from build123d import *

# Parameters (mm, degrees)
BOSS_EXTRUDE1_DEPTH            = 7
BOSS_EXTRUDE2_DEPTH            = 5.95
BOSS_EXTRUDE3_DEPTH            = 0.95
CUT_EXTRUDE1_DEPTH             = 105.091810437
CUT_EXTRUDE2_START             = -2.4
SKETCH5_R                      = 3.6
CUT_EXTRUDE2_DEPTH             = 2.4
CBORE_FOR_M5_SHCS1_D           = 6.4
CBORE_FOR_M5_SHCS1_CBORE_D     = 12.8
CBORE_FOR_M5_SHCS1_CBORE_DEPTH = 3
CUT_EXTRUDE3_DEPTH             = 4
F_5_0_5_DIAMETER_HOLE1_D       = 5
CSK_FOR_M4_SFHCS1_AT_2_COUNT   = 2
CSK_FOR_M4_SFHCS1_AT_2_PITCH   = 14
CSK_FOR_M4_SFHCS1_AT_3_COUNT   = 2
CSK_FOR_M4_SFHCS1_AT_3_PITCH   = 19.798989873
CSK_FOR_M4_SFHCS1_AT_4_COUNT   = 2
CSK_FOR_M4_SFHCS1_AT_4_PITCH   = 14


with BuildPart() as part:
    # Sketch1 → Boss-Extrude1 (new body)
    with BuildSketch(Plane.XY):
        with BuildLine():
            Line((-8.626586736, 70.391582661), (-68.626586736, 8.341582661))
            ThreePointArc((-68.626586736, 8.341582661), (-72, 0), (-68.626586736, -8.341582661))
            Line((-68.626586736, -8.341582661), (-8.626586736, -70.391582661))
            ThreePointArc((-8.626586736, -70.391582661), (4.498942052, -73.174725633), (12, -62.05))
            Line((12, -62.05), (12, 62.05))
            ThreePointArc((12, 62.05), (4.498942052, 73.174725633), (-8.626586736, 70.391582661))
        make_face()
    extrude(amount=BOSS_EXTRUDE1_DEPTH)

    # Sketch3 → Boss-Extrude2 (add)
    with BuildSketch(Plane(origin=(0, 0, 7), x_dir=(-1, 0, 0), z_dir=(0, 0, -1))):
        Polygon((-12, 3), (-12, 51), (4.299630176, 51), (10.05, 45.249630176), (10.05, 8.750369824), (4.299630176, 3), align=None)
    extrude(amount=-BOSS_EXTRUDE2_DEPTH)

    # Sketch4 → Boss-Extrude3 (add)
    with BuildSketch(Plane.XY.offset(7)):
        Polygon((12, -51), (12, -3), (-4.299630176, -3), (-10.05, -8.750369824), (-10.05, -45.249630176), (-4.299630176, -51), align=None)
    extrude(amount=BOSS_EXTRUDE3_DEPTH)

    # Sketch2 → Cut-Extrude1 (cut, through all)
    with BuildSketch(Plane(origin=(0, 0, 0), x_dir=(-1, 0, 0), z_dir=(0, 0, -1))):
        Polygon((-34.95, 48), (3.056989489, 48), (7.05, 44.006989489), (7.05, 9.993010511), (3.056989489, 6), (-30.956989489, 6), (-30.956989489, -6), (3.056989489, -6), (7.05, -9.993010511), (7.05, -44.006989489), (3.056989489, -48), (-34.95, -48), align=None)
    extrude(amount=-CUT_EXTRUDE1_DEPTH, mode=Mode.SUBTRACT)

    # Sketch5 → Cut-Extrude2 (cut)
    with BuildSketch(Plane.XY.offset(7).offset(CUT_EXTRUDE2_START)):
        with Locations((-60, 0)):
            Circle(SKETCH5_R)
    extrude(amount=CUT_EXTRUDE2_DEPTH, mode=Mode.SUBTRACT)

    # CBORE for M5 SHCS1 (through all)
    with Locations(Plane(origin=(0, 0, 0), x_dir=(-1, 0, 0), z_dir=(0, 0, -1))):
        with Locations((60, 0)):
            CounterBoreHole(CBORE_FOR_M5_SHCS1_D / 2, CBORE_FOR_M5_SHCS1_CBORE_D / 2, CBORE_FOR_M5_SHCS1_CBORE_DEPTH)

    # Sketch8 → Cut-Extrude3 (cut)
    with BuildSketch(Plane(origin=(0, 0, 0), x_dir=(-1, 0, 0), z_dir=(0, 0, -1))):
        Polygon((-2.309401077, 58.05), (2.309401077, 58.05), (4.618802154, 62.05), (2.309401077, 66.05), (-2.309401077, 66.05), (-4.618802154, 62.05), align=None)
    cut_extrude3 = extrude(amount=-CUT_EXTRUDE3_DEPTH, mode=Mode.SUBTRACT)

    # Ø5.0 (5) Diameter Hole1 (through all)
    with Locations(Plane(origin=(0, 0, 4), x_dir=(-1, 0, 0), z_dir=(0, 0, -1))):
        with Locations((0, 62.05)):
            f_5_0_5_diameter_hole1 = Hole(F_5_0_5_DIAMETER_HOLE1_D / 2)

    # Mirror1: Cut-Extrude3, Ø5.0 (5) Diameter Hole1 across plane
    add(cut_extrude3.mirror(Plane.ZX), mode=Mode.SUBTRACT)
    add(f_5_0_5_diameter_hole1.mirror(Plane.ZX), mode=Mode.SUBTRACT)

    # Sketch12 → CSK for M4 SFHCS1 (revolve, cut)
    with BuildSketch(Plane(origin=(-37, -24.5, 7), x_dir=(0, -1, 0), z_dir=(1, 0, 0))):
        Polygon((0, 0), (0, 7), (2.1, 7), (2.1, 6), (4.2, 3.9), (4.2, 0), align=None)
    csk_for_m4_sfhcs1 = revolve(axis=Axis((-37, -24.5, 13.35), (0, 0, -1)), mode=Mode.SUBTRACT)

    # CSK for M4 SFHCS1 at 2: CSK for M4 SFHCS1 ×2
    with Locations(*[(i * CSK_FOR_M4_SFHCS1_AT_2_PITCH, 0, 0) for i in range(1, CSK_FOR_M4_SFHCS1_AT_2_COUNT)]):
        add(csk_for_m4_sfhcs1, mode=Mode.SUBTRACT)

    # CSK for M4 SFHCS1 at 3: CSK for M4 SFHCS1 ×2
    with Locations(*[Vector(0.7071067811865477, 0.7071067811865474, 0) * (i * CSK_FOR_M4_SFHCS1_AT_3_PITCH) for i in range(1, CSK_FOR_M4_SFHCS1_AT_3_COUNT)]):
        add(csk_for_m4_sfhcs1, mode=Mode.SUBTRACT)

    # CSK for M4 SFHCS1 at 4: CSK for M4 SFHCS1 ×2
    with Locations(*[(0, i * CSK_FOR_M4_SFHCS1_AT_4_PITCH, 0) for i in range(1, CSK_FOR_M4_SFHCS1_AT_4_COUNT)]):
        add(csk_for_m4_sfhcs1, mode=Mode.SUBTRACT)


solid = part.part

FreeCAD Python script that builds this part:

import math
import FreeCAD as App
import Part
import Sketcher
Q = App.Units.Quantity

doc = App.newDocument("Part")
body = doc.addObject("PartDesign::Body", "Body")

# Sketch on XY plane
sketch1 = body.newObject("Sketcher::SketchObject", "Sketch")
sketch1.AttachmentSupport = (doc.getObject("XY_Plane"), [""])
sketch1.MapMode = "FlatFace"
sketch1.addGeometry(Part.LineSegment(App.Vector(-9, 70, 0), App.Vector(-69, 8, 0)), False)
sketch1.addGeometry(Part.ArcOfCircle(Part.Circle(App.Vector(-60, 0, 0), App.Vector(0, 0, 1), 12), math.radians(136), math.radians(224)), False)
sketch1.addGeometry(Part.LineSegment(App.Vector(-69, -8, 0), App.Vector(-9, -70, 0)), False)
sketch1.addGeometry(Part.ArcOfCircle(Part.Circle(App.Vector(0, -62, 0), App.Vector(0, 0, 1), 12), math.radians(-136), math.radians(0)), False)
sketch1.addGeometry(Part.LineSegment(App.Vector(12, -62, 0), App.Vector(12, 62, 0)), False)
sketch1.addGeometry(Part.ArcOfCircle(Part.Circle(App.Vector(0, 62, 0), App.Vector(0, 0, 1), 12), math.radians(0), math.radians(136)), False)
sketch1.addConstraint(Sketcher.Constraint("Tangent", 0, 2, 1, 1))
sketch1.addConstraint(Sketcher.Constraint("Tangent", 1, 2, 2, 1))
sketch1.addConstraint(Sketcher.Constraint("Tangent", 2, 2, 3, 1))
sketch1.addConstraint(Sketcher.Constraint("Tangent", 3, 2, 4, 1))
sketch1.addConstraint(Sketcher.Constraint("Tangent", 4, 2, 5, 1))
sketch1.addConstraint(Sketcher.Constraint("Tangent", 5, 2, 0, 1))
sketch1.addConstraint(Sketcher.Constraint("Vertical", 4))
sketch1.addConstraint(Sketcher.Constraint("Equal", 1, 3))
sketch1.addConstraint(Sketcher.Constraint("Equal", 3, 5))
sketch1.addConstraint(Sketcher.Constraint("Symmetric", 3, 3, 5, 3, -1, 1))
sketch1.addConstraint(Sketcher.Constraint("PointOnObject", 1, 3, -1))
sketch1.addConstraint(Sketcher.Constraint("Radius", 1, Q("12 mm")))
sketch1.addConstraint(Sketcher.Constraint("DistanceY", 4, 1, 4, 2, Q("124.1 mm")))
sketch1.addConstraint(Sketcher.Constraint("DistanceX", 1, 3, -1, 1, Q("60 mm")))
pad1 = body.newObject("PartDesign::Pad", "Pad")
pad1.Profile = sketch1
pad1.Length = 7

# Sketch on XY plane
sketch2 = body.newObject("Sketcher::SketchObject", "Sketch001")
sketch2.AttachmentSupport = (doc.getObject("XY_Plane"), [""])
sketch2.MapMode = "FlatFace"
sketch2.AttachmentOffset = App.Placement(App.Vector(0, 0, 7), App.Rotation())
sketch2.addGeometry(Part.LineSegment(App.Vector(12, 51, 0), App.Vector(12, 3, 0)), False)
sketch2.addGeometry(Part.LineSegment(App.Vector(12, 3, 0), App.Vector(-4, 3, 0)), False)
sketch2.addGeometry(Part.LineSegment(App.Vector(-4, 3, 0), App.Vector(-10, 9, 0)), False)
sketch2.addGeometry(Part.LineSegment(App.Vector(-10, 9, 0), App.Vector(-10, 45, 0)), False)
sketch2.addGeometry(Part.LineSegment(App.Vector(-10, 45, 0), App.Vector(-4, 51, 0)), False)
sketch2.addGeometry(Part.LineSegment(App.Vector(-4, 51, 0), App.Vector(12, 51, 0)), False)
sketch2.addConstraint(Sketcher.Constraint("Coincident", 0, 2, 1, 1))
sketch2.addConstraint(Sketcher.Constraint("Coincident", 1, 2, 2, 1))
sketch2.addConstraint(Sketcher.Constraint("Coincident", 2, 2, 3, 1))
sketch2.addConstraint(Sketcher.Constraint("Coincident", 3, 2, 4, 1))
sketch2.addConstraint(Sketcher.Constraint("Coincident", 4, 2, 5, 1))
sketch2.addConstraint(Sketcher.Constraint("Coincident", 5, 2, 0, 1))
sketch2.addConstraint(Sketcher.Constraint("Vertical", 0))
sketch2.addConstraint(Sketcher.Constraint("Horizontal", 1))
sketch2.addConstraint(Sketcher.Constraint("Vertical", 3))
sketch2.addConstraint(Sketcher.Constraint("Horizontal", 5))
sketch2.addConstraint(Sketcher.Constraint("Perpendicular", 2, 4))
sketch2.addConstraint(Sketcher.Constraint("Vertical", 1, 2, 4, 2))
sketch2.addConstraint(Sketcher.Constraint("Equal", 2, 4))
sketch2.addConstraint(Sketcher.Constraint("DistanceY", 0, 2, 0, 1, Q("48 mm")))
sketch2.addConstraint(Sketcher.Constraint("DistanceX", -1, 1, 0, 2, Q("12 mm")))
sketch2.addConstraint(Sketcher.Constraint("DistanceY", -1, 1, 0, 2, Q("3 mm")))
sketch2.addConstraint(Sketcher.Constraint("DistanceX", 2, 2, -1, 1, Q("10.05 mm")))
sketch2.addConstraint(Sketcher.Constraint("DistanceX", 1, 2, 1, 1, Q("16.29963 mm")))
pad2 = body.newObject("PartDesign::Pad", "Pad001")
pad2.Profile = sketch2
pad2.Length = 5.95

# Sketch on XY plane
sketch3 = body.newObject("Sketcher::SketchObject", "Sketch002")
sketch3.AttachmentSupport = (doc.getObject("XY_Plane"), [""])
sketch3.MapMode = "FlatFace"
sketch3.AttachmentOffset = App.Placement(App.Vector(0, 0, 7), App.Rotation())
sketch3.addGeometry(Part.LineSegment(App.Vector(12, -51, 0), App.Vector(12, -3, 0)), False)
sketch3.addGeometry(Part.LineSegment(App.Vector(12, -3, 0), App.Vector(-4, -3, 0)), False)
sketch3.addGeometry(Part.LineSegment(App.Vector(-4, -3, 0), App.Vector(-10, -9, 0)), False)
sketch3.addGeometry(Part.LineSegment(App.Vector(-10, -9, 0), App.Vector(-10, -45, 0)), False)
sketch3.addGeometry(Part.LineSegment(App.Vector(-10, -45, 0), App.Vector(-4, -51, 0)), False)
sketch3.addGeometry(Part.LineSegment(App.Vector(-4, -51, 0), App.Vector(12, -51, 0)), False)
sketch3.addConstraint(Sketcher.Constraint("Coincident", 0, 2, 1, 1))
sketch3.addConstraint(Sketcher.Constraint("Coincident", 1, 2, 2, 1))
sketch3.addConstraint(Sketcher.Constraint("Coincident", 2, 2, 3, 1))
sketch3.addConstraint(Sketcher.Constraint("Coincident", 3, 2, 4, 1))
sketch3.addConstraint(Sketcher.Constraint("Coincident", 4, 2, 5, 1))
sketch3.addConstraint(Sketcher.Constraint("Coincident", 5, 2, 0, 1))
sketch3.addConstraint(Sketcher.Constraint("Vertical", 0))
sketch3.addConstraint(Sketcher.Constraint("Horizontal", 1))
sketch3.addConstraint(Sketcher.Constraint("Vertical", 3))
sketch3.addConstraint(Sketcher.Constraint("Horizontal", 5))
sketch3.addConstraint(Sketcher.Constraint("Perpendicular", 2, 4))
sketch3.addConstraint(Sketcher.Constraint("Vertical", 1, 2, 4, 2))
sketch3.addConstraint(Sketcher.Constraint("Equal", 2, 4))
sketch3.addConstraint(Sketcher.Constraint("DistanceY", 0, 1, 0, 2, Q("48 mm")))
sketch3.addConstraint(Sketcher.Constraint("DistanceX", -1, 1, 0, 2, Q("12 mm")))
sketch3.addConstraint(Sketcher.Constraint("DistanceY", 0, 2, -1, 1, Q("3 mm")))
sketch3.addConstraint(Sketcher.Constraint("DistanceX", 2, 2, -1, 1, Q("10.05 mm")))
sketch3.addConstraint(Sketcher.Constraint("DistanceX", 1, 2, 1, 1, Q("16.29963 mm")))
pad3 = body.newObject("PartDesign::Pad", "Pad002")
pad3.Profile = sketch3
pad3.Length = 0.95

# Sketch on XY plane
sketch4 = body.newObject("Sketcher::SketchObject", "Sketch003")
sketch4.AttachmentSupport = (doc.getObject("XY_Plane"), [""])
sketch4.MapMode = "FlatFace"
sketch4.addGeometry(Part.LineSegment(App.Vector(-3, 48, 0), App.Vector(35, 48, 0)), False)
sketch4.addGeometry(Part.LineSegment(App.Vector(35, 48, 0), App.Vector(35, -48, 0)), False)
sketch4.addGeometry(Part.LineSegment(App.Vector(35, -48, 0), App.Vector(-3, -48, 0)), False)
sketch4.addGeometry(Part.LineSegment(App.Vector(-3, -48, 0), App.Vector(-7, -44, 0)), False)
sketch4.addGeometry(Part.LineSegment(App.Vector(-7, -44, 0), App.Vector(-7, -10, 0)), False)
sketch4.addGeometry(Part.LineSegment(App.Vector(-7, -10, 0), App.Vector(-3, -6, 0)), False)
sketch4.addGeometry(Part.LineSegment(App.Vector(-3, -6, 0), App.Vector(31, -6, 0)), False)
sketch4.addGeometry(Part.LineSegment(App.Vector(31, -6, 0), App.Vector(31, 6, 0)), False)
sketch4.addGeometry(Part.LineSegment(App.Vector(31, 6, 0), App.Vector(-3, 6, 0)), False)
sketch4.addGeometry(Part.LineSegment(App.Vector(-3, 6, 0), App.Vector(-7, 10, 0)), False)
sketch4.addGeometry(Part.LineSegment(App.Vector(-7, 10, 0), App.Vector(-7, 44, 0)), False)
sketch4.addGeometry(Part.LineSegment(App.Vector(-7, 44, 0), App.Vector(-3, 48, 0)), False)
sketch4.addConstraint(Sketcher.Constraint("Coincident", 0, 2, 1, 1))
sketch4.addConstraint(Sketcher.Constraint("Coincident", 1, 2, 2, 1))
sketch4.addConstraint(Sketcher.Constraint("Coincident", 2, 2, 3, 1))
sketch4.addConstraint(Sketcher.Constraint("Coincident", 3, 2, 4, 1))
sketch4.addConstraint(Sketcher.Constraint("Coincident", 4, 2, 5, 1))
sketch4.addConstraint(Sketcher.Constraint("Coincident", 5, 2, 6, 1))
sketch4.addConstraint(Sketcher.Constraint("Coincident", 6, 2, 7, 1))
sketch4.addConstraint(Sketcher.Constraint("Coincident", 7, 2, 8, 1))
sketch4.addConstraint(Sketcher.Constraint("Coincident", 8, 2, 9, 1))
sketch4.addConstraint(Sketcher.Constraint("Coincident", 9, 2, 10, 1))
sketch4.addConstraint(Sketcher.Constraint("Coincident", 10, 2, 11, 1))
sketch4.addConstraint(Sketcher.Constraint("Coincident", 11, 2, 0, 1))
sketch4.addConstraint(Sketcher.Constraint("Horizontal", 0))
sketch4.addConstraint(Sketcher.Constraint("Vertical", 1))
sketch4.addConstraint(Sketcher.Constraint("Horizontal", 2))
sketch4.addConstraint(Sketcher.Constraint("Vertical", 4))
sketch4.addConstraint(Sketcher.Constraint("Horizontal", 6))
sketch4.addConstraint(Sketcher.Constraint("Vertical", 7))
sketch4.addConstraint(Sketcher.Constraint("Horizontal", 8))
sketch4.addConstraint(Sketcher.Constraint("Vertical", 10))
sketch4.addConstraint(Sketcher.Constraint("Symmetric", 5, 2, 8, 2, -1))
sketch4.addConstraint(Sketcher.Constraint("Symmetric", 4, 2, 9, 2, -1))
sketch4.addConstraint(Sketcher.Constraint("Symmetric", 2, 2, 11, 2, -1))
sketch4.addConstraint(Sketcher.Constraint("Perpendicular", 3, 5))
sketch4.addConstraint(Sketcher.Constraint("Perpendicular", 5, 9))
sketch4.addConstraint(Sketcher.Constraint("Perpendicular", 9, 11))
sketch4.addConstraint(Sketcher.Constraint("Vertical", 2, 2, 5, 2))
sketch4.addConstraint(Sketcher.Constraint("Equal", 8, 4))
sketch4.addConstraint(Sketcher.Constraint("DistanceY", 1, 2, 1, 1, Q("96 mm")))
sketch4.addConstraint(Sketcher.Constraint("DistanceY", 7, 1, 7, 2, Q("12 mm")))
sketch4.addConstraint(Sketcher.Constraint("DistanceX", 3, 2, 1, 2, Q("42 mm")))
sketch4.addConstraint(Sketcher.Constraint("DistanceX", -1, 1, 0, 2, Q("34.95 mm")))
sketch4.addConstraint(Sketcher.Constraint("DistanceX", 0, 1, 0, 2, Q("38.006989 mm")))
pocket1 = body.newObject("PartDesign::Pocket", "Pocket")
pocket1.Profile = sketch4
pocket1.Type = "ThroughAll"
pocket1.Reversed = True

# Sketch on XY plane
sketch5 = body.newObject("Sketcher::SketchObject", "Sketch004")
sketch5.AttachmentSupport = (doc.getObject("XY_Plane"), [""])
sketch5.MapMode = "FlatFace"
sketch5.AttachmentOffset = App.Placement(App.Vector(0, 0, 4.6), App.Rotation())
sketch5.addGeometry(Part.Circle(App.Vector(-60, 0, 0), App.Vector(0, 0, 1), 3.6), False)
sketch5.addConstraint(Sketcher.Constraint("PointOnObject", 0, 3, -1))
sketch5.addConstraint(Sketcher.Constraint("Diameter", 0, Q("7.2 mm")))
sketch5.addConstraint(Sketcher.Constraint("DistanceX", 0, 3, -1, 1, Q("60 mm")))
pocket2 = body.newObject("PartDesign::Pocket", "Pocket001")
pocket2.Profile = sketch5
pocket2.Length = 2.4
pocket2.Reversed = True

# Sketch on XY plane
sketch6 = body.newObject("Sketcher::SketchObject", "Sketch005")
sketch6.AttachmentSupport = (doc.getObject("XY_Plane"), [""])
sketch6.MapMode = "FlatFace"
sketch6.addGeometry(Part.Circle(App.Vector(-60, 0, 0), App.Vector(0, 0, 1), 3.2), False)
sketch6.addConstraint(Sketcher.Constraint("PointOnObject", 0, 3, -1))
sketch6.addConstraint(Sketcher.Constraint("Diameter", 0, Q("6.4 mm")))
sketch6.addConstraint(Sketcher.Constraint("DistanceX", 0, 3, -1, 1, Q("60 mm")))
doc.recompute()
hole = body.newObject("PartDesign::Hole", "Hole")
hole.Profile = sketch6
hole.ThreadType = "None"
hole.Diameter = 6.4
hole.DepthType = "ThroughAll"
hole.HoleCutType = "Counterbore"
hole.HoleCutDiameter = 12.8
hole.HoleCutDepth = 3
hole.Reversed = True

# Sketch on XY plane
sketch7 = body.newObject("Sketcher::SketchObject", "Sketch006")
sketch7.AttachmentSupport = (doc.getObject("XY_Plane"), [""])
sketch7.MapMode = "FlatFace"
sketch7.addGeometry(Part.LineSegment(App.Vector(2.3, 58, 0), App.Vector(-2.3, 58, 0)), False)
sketch7.addGeometry(Part.LineSegment(App.Vector(-2.3, 58, 0), App.Vector(-4.6, 62, 0)), False)
sketch7.addGeometry(Part.LineSegment(App.Vector(-4.6, 62, 0), App.Vector(-2.3, 66, 0)), False)
sketch7.addGeometry(Part.LineSegment(App.Vector(-2.3, 66, 0), App.Vector(2.3, 66, 0)), False)
sketch7.addGeometry(Part.LineSegment(App.Vector(2.3, 66, 0), App.Vector(4.6, 62, 0)), False)
sketch7.addGeometry(Part.LineSegment(App.Vector(4.6, 62, 0), App.Vector(2.3, 58, 0)), False)
sketch7.addConstraint(Sketcher.Constraint("Coincident", 0, 2, 1, 1))
sketch7.addConstraint(Sketcher.Constraint("Coincident", 1, 2, 2, 1))
sketch7.addConstraint(Sketcher.Constraint("Coincident", 2, 2, 3, 1))
sketch7.addConstraint(Sketcher.Constraint("Coincident", 3, 2, 4, 1))
sketch7.addConstraint(Sketcher.Constraint("Coincident", 4, 2, 5, 1))
sketch7.addConstraint(Sketcher.Constraint("Coincident", 5, 2, 0, 1))
sketch7.addConstraint(Sketcher.Constraint("Horizontal", 0))
sketch7.addConstraint(Sketcher.Constraint("Horizontal", 3))
sketch7.addConstraint(Sketcher.Constraint("Symmetric", 1, 2, 4, 2, -2))
sketch7.addConstraint(Sketcher.Constraint("Parallel", 1, 4))
sketch7.addConstraint(Sketcher.Constraint("Parallel", 2, 5))
sketch7.addConstraint(Sketcher.Constraint("Vertical", 0, 2, 2, 2))
sketch7.addConstraint(Sketcher.Constraint("Vertical", 3, 2, 5, 2))
sketch7.addConstraint(Sketcher.Constraint("Angle", 1, Q("120 deg")))
sketch7.addConstraint(Sketcher.Constraint("DistanceY", 0, 2, 1, 2, Q("4 mm")))
sketch7.addConstraint(Sketcher.Constraint("DistanceY", -1, 1, 0, 2, Q("58.05 mm")))
sketch7.addConstraint(Sketcher.Constraint("DistanceX", 0, 2, -1, 1, Q("2.309401 mm")))
pocket3 = body.newObject("PartDesign::Pocket", "Pocket002")
pocket3.Profile = sketch7
pocket3.Length = 4
pocket3.Reversed = True

# Sketch on XY plane
sketch8 = body.newObject("Sketcher::SketchObject", "Sketch007")
sketch8.AttachmentSupport = (doc.getObject("XY_Plane"), [""])
sketch8.MapMode = "FlatFace"
sketch8.AttachmentOffset = App.Placement(App.Vector(0, 0, 4), App.Rotation())
sketch8.addGeometry(Part.Circle(App.Vector(0, 62, 0), App.Vector(0, 0, 1), 2.5), False)
sketch8.addConstraint(Sketcher.Constraint("PointOnObject", 0, 3, -2))
sketch8.addConstraint(Sketcher.Constraint("Diameter", 0, Q("5 mm")))
sketch8.addConstraint(Sketcher.Constraint("DistanceY", -1, 1, 0, 3, Q("62.05 mm")))
doc.recompute()
hole2 = body.newObject("PartDesign::Hole", "Hole001")
hole2.Profile = sketch8
hole2.ThreadType = "None"
hole2.Diameter = 5
hole2.DepthType = "ThroughAll"
hole2.Reversed = True
doc.recompute()

mirrored = body.newObject("PartDesign::Mirrored", "Mirrored")
mirrored.Originals = [pocket3, hole2]
mirrored.MirrorPlane = (doc.getObject("XZ_Plane"), [""])
body.Tip = mirrored

# Sketch on YZ plane
sketch9 = body.newObject("Sketcher::SketchObject", "Sketch008")
sketch9.AttachmentSupport = (doc.getObject("YZ_Plane"), [""])
sketch9.MapMode = "FlatFace"
sketch9.AttachmentOffset = App.Placement(App.Vector(0, 0, -37), App.Rotation())
sketch9.addGeometry(Part.LineSegment(App.Vector(-24.5, 0, 0), App.Vector(-24.5, 7, 0)), False)
sketch9.addGeometry(Part.LineSegment(App.Vector(-24.5, 7, 0), App.Vector(-28.7, 7, 0)), False)
sketch9.addGeometry(Part.LineSegment(App.Vector(-28.7, 7, 0), App.Vector(-28.7, 3.1, 0)), False)
sketch9.addGeometry(Part.LineSegment(App.Vector(-28.7, 3.1, 0), App.Vector(-26.6, 1, 0)), False)
sketch9.addGeometry(Part.LineSegment(App.Vector(-26.6, 1, 0), App.Vector(-26.6, 0, 0)), False)
sketch9.addGeometry(Part.LineSegment(App.Vector(-26.6, 0, 0), App.Vector(-24.5, 0, 0)), False)
sketch9.addGeometry(Part.LineSegment(App.Vector(-24.5, 7, 0), App.Vector(-24.5, 0, 0)), True)  # axis
sketch9.addConstraint(Sketcher.Constraint("Coincident", 0, 2, 1, 1))
sketch9.addConstraint(Sketcher.Constraint("Coincident", 1, 2, 2, 1))
sketch9.addConstraint(Sketcher.Constraint("Coincident", 2, 2, 3, 1))
sketch9.addConstraint(Sketcher.Constraint("Coincident", 3, 2, 4, 1))
sketch9.addConstraint(Sketcher.Constraint("Coincident", 4, 2, 5, 1))
sketch9.addConstraint(Sketcher.Constraint("Coincident", 5, 2, 0, 1))
sketch9.addConstraint(Sketcher.Constraint("Vertical", 0))
sketch9.addConstraint(Sketcher.Constraint("Horizontal", 1))
sketch9.addConstraint(Sketcher.Constraint("Vertical", 2))
sketch9.addConstraint(Sketcher.Constraint("Vertical", 4))
sketch9.addConstraint(Sketcher.Constraint("Horizontal", 5))
sketch9.addConstraint(Sketcher.Constraint("Vertical", 6))
sketch9.addConstraint(Sketcher.Constraint("Coincident", 6, 1, 0, 2))
sketch9.addConstraint(Sketcher.Constraint("PointOnObject", 4, 2, -1))
sketch9.addConstraint(Sketcher.Constraint("PointOnObject", 6, 2, -1))
sketch9.addConstraint(Sketcher.Constraint("DistanceY", 0, 1, 0, 2, Q("7 mm")))
sketch9.addConstraint(Sketcher.Constraint("DistanceY", 4, 2, 4, 1, Q("1 mm")))
sketch9.addConstraint(Sketcher.Constraint("Angle", 3, Q("-45 deg")))
sketch9.addConstraint(Sketcher.Constraint("DistanceX", 1, 2, 1, 1, Q("4.2 mm")))
sketch9.addConstraint(Sketcher.Constraint("DistanceX", 5, 1, 5, 2, Q("2.1 mm")))
sketch9.addConstraint(Sketcher.Constraint("DistanceX", 0, 2, -1, 1, Q("24.5 mm")))
groove = body.newObject("PartDesign::Groove", "Groove")
groove.Profile = sketch9
groove.ReferenceAxis = (sketch9, ["Axis0"])
groove.Angle = 360
doc.recompute()

linearpattern = body.newObject("PartDesign::LinearPattern", "LinearPattern")
linearpattern.Originals = [groove]
linearpattern.Direction = (doc.getObject("X_Axis"), [""])
linearpattern.Mode = "offset"
linearpattern.Offset = 14
linearpattern.Occurrences = 2
body.Tip = linearpattern
doc.recompute()

datumline = body.newObject("PartDesign::Line", "DatumLine")
datumline.Placement = App.Placement(App.Vector(0, 0, 0), App.Rotation(App.Vector(0, 0, 1), App.Vector(0.707106781, 0.707106781, 0)))
linearpattern2 = body.newObject("PartDesign::LinearPattern", "LinearPattern001")
linearpattern2.Originals = [groove]
linearpattern2.Direction = (datumline, [""])
linearpattern2.Mode = "offset"
linearpattern2.Offset = 19.79899
linearpattern2.Occurrences = 2
body.Tip = linearpattern2
doc.recompute()

linearpattern3 = body.newObject("PartDesign::LinearPattern", "LinearPattern002")
linearpattern3.Originals = [groove]
linearpattern3.Direction = (doc.getObject("Y_Axis"), [""])
linearpattern3.Mode = "offset"
linearpattern3.Offset = 14
linearpattern3.Occurrences = 2
body.Tip = linearpattern3

doc.recompute()
